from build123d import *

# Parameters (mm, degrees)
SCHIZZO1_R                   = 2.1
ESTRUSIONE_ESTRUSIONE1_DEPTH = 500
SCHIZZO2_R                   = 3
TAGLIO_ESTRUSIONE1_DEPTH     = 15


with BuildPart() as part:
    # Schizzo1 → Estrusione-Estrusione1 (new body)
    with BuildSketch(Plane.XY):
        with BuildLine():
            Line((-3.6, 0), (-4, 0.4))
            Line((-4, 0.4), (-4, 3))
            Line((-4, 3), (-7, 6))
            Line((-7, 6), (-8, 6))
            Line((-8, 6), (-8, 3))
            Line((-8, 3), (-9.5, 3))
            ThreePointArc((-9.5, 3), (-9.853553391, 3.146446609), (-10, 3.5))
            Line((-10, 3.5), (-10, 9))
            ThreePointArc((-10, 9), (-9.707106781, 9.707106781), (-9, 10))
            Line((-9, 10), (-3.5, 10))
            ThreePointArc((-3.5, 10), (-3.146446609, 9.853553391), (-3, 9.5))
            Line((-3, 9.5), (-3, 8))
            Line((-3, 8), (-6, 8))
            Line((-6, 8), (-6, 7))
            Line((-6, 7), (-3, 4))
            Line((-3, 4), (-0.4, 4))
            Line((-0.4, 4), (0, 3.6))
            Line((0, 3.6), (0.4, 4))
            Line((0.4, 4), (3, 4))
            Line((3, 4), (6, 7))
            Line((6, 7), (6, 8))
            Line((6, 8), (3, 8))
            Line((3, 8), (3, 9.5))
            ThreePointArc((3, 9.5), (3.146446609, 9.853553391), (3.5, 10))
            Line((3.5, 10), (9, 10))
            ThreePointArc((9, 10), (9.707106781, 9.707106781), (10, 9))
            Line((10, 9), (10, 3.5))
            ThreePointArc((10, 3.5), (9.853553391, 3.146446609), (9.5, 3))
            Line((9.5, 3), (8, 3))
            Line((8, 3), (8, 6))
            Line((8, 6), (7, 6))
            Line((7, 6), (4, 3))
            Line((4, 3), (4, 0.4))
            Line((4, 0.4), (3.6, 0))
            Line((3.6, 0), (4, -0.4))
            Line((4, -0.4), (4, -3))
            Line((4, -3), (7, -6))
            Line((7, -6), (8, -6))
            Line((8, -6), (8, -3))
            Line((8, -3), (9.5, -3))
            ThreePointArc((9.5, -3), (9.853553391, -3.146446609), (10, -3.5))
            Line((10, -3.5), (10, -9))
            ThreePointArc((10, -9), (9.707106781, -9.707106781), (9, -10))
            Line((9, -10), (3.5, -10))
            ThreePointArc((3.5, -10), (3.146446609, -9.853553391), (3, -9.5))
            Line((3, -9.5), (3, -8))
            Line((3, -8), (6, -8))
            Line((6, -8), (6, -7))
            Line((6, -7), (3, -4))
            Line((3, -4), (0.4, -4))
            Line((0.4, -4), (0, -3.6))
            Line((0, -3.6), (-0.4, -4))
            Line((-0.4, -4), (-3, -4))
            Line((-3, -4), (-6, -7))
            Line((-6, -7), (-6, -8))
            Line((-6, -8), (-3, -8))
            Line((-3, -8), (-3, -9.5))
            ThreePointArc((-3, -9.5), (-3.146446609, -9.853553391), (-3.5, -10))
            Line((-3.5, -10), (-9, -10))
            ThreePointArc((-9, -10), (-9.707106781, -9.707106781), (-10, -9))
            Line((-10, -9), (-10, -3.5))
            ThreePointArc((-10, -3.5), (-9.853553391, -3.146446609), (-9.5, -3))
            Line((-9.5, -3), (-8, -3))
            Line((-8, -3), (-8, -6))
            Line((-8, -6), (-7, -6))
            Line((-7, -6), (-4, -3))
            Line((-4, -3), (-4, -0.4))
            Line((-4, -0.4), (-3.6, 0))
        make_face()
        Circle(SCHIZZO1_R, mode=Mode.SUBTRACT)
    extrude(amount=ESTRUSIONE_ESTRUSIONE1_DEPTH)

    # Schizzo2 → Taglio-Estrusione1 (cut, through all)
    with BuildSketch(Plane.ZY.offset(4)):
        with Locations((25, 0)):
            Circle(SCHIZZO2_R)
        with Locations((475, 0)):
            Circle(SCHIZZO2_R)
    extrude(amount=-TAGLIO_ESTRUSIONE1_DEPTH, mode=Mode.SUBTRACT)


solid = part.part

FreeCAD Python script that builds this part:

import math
import FreeCAD as App
import Part
import Sketcher

V = App.Vector
Q = App.Units.Quantity

doc = App.newDocument("Part")
body = doc.addObject("PartDesign::Body", "Body")

# Sketch on XY plane
sketch1 = body.newObject("Sketcher::SketchObject", "Sketch")
sketch1.AttachmentSupport = (doc.getObject("XY_Plane"), [""])
sketch1.MapMode = "FlatFace"
sketch1.addGeometry([
    Part.LineSegment(V(-4, 0.4, 0), V(-3.6, 0, 0)),  # 0
    Part.LineSegment(V(-3.6, 0, 0), V(-4, -0.4, 0)),  # 1
    Part.LineSegment(V(-4, -0.4, 0), V(-4, -3, 0)),  # 2
    Part.LineSegment(V(-4, -3, 0), V(-7, -6, 0)),  # 3
    Part.LineSegment(V(-7, -6, 0), V(-8, -6, 0)),  # 4
    Part.LineSegment(V(-8, -6, 0), V(-8, -3, 0)),  # 5
    Part.LineSegment(V(-8, -3, 0), V(-9.5, -3, 0)),  # 6
    Part.ArcOfCircle(Part.Circle(V(-9.5, -3.5, 0), V(0, 0, 1), 0.5), math.radians(90), math.radians(180)),  # 7
    Part.LineSegment(V(-10, -3.5, 0), V(-10, -9, 0)),  # 8
    Part.ArcOfCircle(Part.Circle(V(-9, -9, 0), V(0, 0, 1), 1), math.radians(-180), math.radians(-90)),  # 9
    Part.LineSegment(V(-9, -10, 0), V(-3.5, -10, 0)),  # 10
    Part.ArcOfCircle(Part.Circle(V(-3.5, -9.5, 0), V(0, 0, 1), 0.5), math.radians(-90), math.radians(0)),  # 11
    Part.LineSegment(V(-3, -9.5, 0), V(-3, -8, 0)),  # 12
    Part.LineSegment(V(-3, -8, 0), V(-6, -8, 0)),  # 13
    Part.LineSegment(V(-6, -8, 0), V(-6, -7, 0)),  # 14
    Part.LineSegment(V(-6, -7, 0), V(-3, -4, 0)),  # 15
    Part.LineSegment(V(-3, -4, 0), V(-0.4, -4, 0)),  # 16
    Part.LineSegment(V(-0.4, -4, 0), V(0, -3.6, 0)),  # 17
    Part.LineSegment(V(0, -3.6, 0), V(0.4, -4, 0)),  # 18
    Part.LineSegment(V(0.4, -4, 0), V(3, -4, 0)),  # 19
    Part.LineSegment(V(3, -4, 0), V(6, -7, 0)),  # 20
    Part.LineSegment(V(6, -7, 0), V(6, -8, 0)),  # 21
    Part.LineSegment(V(6, -8, 0), V(3, -8, 0)),  # 22
    Part.LineSegment(V(3, -8, 0), V(3, -9.5, 0)),  # 23
    Part.ArcOfCircle(Part.Circle(V(3.5, -9.5, 0), V(0, 0, 1), 0.5), math.radians(180), math.radians(270)),  # 24
    Part.LineSegment(V(3.5, -10, 0), V(9, -10, 0)),  # 25
    Part.ArcOfCircle(Part.Circle(V(9, -9, 0), V(0, 0, 1), 1), math.radians(-90), math.radians(0)),  # 26
    Part.LineSegment(V(10, -9, 0), V(10, -3.5, 0)),  # 27
    Part.ArcOfCircle(Part.Circle(V(9.5, -3.5, 0), V(0, 0, 1), 0.5), math.radians(0), math.radians(90)),  # 28
    Part.LineSegment(V(9.5, -3, 0), V(8, -3, 0)),  # 29
    Part.LineSegment(V(8, -3, 0), V(8, -6, 0)),  # 30
    Part.LineSegment(V(8, -6, 0), V(7, -6, 0)),  # 31
    Part.LineSegment(V(7, -6, 0), V(4, -3, 0)),  # 32
    Part.LineSegment(V(4, -3, 0), V(4, -0.4, 0)),  # 33
    Part.LineSegment(V(4, -0.4, 0), V(3.6, 0, 0)),  # 34
    Part.LineSegment(V(3.6, 0, 0), V(4, 0.4, 0)),  # 35
    Part.LineSegment(V(4, 0.4, 0), V(4, 3, 0)),  # 36
    Part.LineSegment(V(4, 3, 0), V(7, 6, 0)),  # 37
    Part.LineSegment(V(7, 6, 0), V(8, 6, 0)),  # 38
    Part.LineSegment(V(8, 6, 0), V(8, 3, 0)),  # 39
    Part.LineSegment(V(8, 3, 0), V(9.5, 3, 0)),  # 40
    Part.ArcOfCircle(Part.Circle(V(9.5, 3.5, 0), V(0, 0, 1), 0.5), math.radians(-90), math.radians(0)),  # 41
    Part.LineSegment(V(10, 3.5, 0), V(10, 9, 0)),  # 42
    Part.ArcOfCircle(Part.Circle(V(9, 9, 0), V(0, 0, 1), 1), math.radians(0), math.radians(90)),  # 43
    Part.LineSegment(V(9, 10, 0), V(3.5, 10, 0)),  # 44
    Part.ArcOfCircle(Part.Circle(V(3.5, 9.5, 0), V(0, 0, 1), 0.5), math.radians(90), math.radians(180)),  # 45
    Part.LineSegment(V(3, 9.5, 0), V(3, 8, 0)),  # 46
    Part.LineSegment(V(3, 8, 0), V(6, 8, 0)),  # 47
    Part.LineSegment(V(6, 8, 0), V(6, 7, 0)),  # 48
    Part.LineSegment(V(6, 7, 0), V(3, 4, 0)),  # 49
    Part.LineSegment(V(3, 4, 0), V(0.4, 4, 0)),  # 50
    Part.LineSegment(V(0.4, 4, 0), V(0, 3.6, 0)),  # 51
    Part.LineSegment(V(0, 3.6, 0), V(-0.4, 4, 0)),  # 52
    Part.LineSegment(V(-0.4, 4, 0), V(-3, 4, 0)),  # 53
    Part.LineSegment(V(-3, 4, 0), V(-6, 7, 0)),  # 54
    Part.LineSegment(V(-6, 7, 0), V(-6, 8, 0)),  # 55
    Part.LineSegment(V(-6, 8, 0), V(-3, 8, 0)),  # 56
    Part.LineSegment(V(-3, 8, 0), V(-3, 9.5, 0)),  # 57
    Part.ArcOfCircle(Part.Circle(V(-3.5, 9.5, 0), V(0, 0, 1), 0.5), math.radians(0), math.radians(90)),  # 58
    Part.LineSegment(V(-3.5, 10, 0), V(-9, 10, 0)),  # 59
    Part.ArcOfCircle(Part.Circle(V(-9, 9, 0), V(0, 0, 1), 1), math.radians(90), math.radians(180)),  # 60
    Part.LineSegment(V(-10, 9, 0), V(-10, 3.5, 0)),  # 61
    Part.ArcOfCircle(Part.Circle(V(-9.5, 3.5, 0), V(0, 0, 1), 0.5), math.radians(180), math.radians(270)),  # 62
    Part.LineSegment(V(-9.5, 3, 0), V(-8, 3, 0)),  # 63
    Part.LineSegment(V(-8, 3, 0), V(-8, 6, 0)),  # 64
    Part.LineSegment(V(-8, 6, 0), V(-7, 6, 0)),  # 65
    Part.LineSegment(V(-7, 6, 0), V(-4, 3, 0)),  # 66
    Part.LineSegment(V(-4, 3, 0), V(-4, 0.4, 0)),  # 67
    Part.Circle(V(0, 0, 0), V(0, 0, 1), 2.1),  # 68
], False)
sketch1.addConstraint([
    Sketcher.Constraint("Coincident", 0, 2, 1, 1),
    Sketcher.Constraint("Coincident", 1, 2, 2, 1),
    Sketcher.Constraint("Coincident", 2, 2, 3, 1),
    Sketcher.Constraint("Coincident", 3, 2, 4, 1),
    Sketcher.Constraint("Coincident", 4, 2, 5, 1),
    Sketcher.Constraint("Coincident", 5, 2, 6, 1),
    Sketcher.Constraint("Tangent", 6, 2, 7, 1),
    Sketcher.Constraint("Tangent", 7, 2, 8, 1),
    Sketcher.Constraint("Tangent", 8, 2, 9, 1),
    Sketcher.Constraint("Tangent", 9, 2, 10, 1),
    Sketcher.Constraint("Tangent", 10, 2, 11, 1),
    Sketcher.Constraint("Tangent", 11, 2, 12, 1),
    Sketcher.Constraint("Coincident", 12, 2, 13, 1),
    Sketcher.Constraint("Coincident", 13, 2, 14, 1),
    Sketcher.Constraint("Coincident", 14, 2, 15, 1),
    Sketcher.Constraint("Coincident", 15, 2, 16, 1),
    Sketcher.Constraint("Coincident", 16, 2, 17, 1),
    Sketcher.Constraint("Coincident", 17, 2, 18, 1),
    Sketcher.Constraint("Coincident", 18, 2, 19, 1),
    Sketcher.Constraint("Coincident", 19, 2, 20, 1),
    Sketcher.Constraint("Coincident", 20, 2, 21, 1),
    Sketcher.Constraint("Coincident", 21, 2, 22, 1),
    Sketcher.Constraint("Coincident", 22, 2, 23, 1),
    Sketcher.Constraint("Tangent", 23, 2, 24, 1),
    Sketcher.Constraint("Tangent", 24, 2, 25, 1),
    Sketcher.Constraint("Tangent", 25, 2, 26, 1),
    Sketcher.Constraint("Tangent", 26, 2, 27, 1),
    Sketcher.Constraint("Tangent", 27, 2, 28, 1),
    Sketcher.Constraint("Tangent", 28, 2, 29, 1),
    Sketcher.Constraint("Coincident", 29, 2, 30, 1),
    Sketcher.Constraint("Coincident", 30, 2, 31, 1),
    Sketcher.Constraint("Coincident", 31, 2, 32, 1),
    Sketcher.Constraint("Coincident", 32, 2, 33, 1),
    Sketcher.Constraint("Coincident", 33, 2, 34, 1),
    Sketcher.Constraint("Coincident", 34, 2, 35, 1),
    Sketcher.Constraint("Coincident", 35, 2, 36, 1),
    Sketcher.Constraint("Coincident", 36, 2, 37, 1),
    Sketcher.Constraint("Coincident", 37, 2, 38, 1),
    Sketcher.Constraint("Coincident", 38, 2, 39, 1),
    Sketcher.Constraint("Coincident", 39, 2, 40, 1),
    Sketcher.Constraint("Tangent", 40, 2, 41, 1),
    Sketcher.Constraint("Tangent", 41, 2, 42, 1),
    Sketcher.Constraint("Tangent", 42, 2, 43, 1),
    Sketcher.Constraint("Tangent", 43, 2, 44, 1),
    Sketcher.Constraint("Tangent", 44, 2, 45, 1),
    Sketcher.Constraint("Tangent", 45, 2, 46, 1),
    Sketcher.Constraint("Coincident", 46, 2, 47, 1),
    Sketcher.Constraint("Coincident", 47, 2, 48, 1),
    Sketcher.Constraint("Coincident", 48, 2, 49, 1),
    Sketcher.Constraint("Coincident", 49, 2, 50, 1),
    Sketcher.Constraint("Coincident", 50, 2, 51, 1),
    Sketcher.Constraint("Coincident", 51, 2, 52, 1),
    Sketcher.Constraint("Coincident", 52, 2, 53, 1),
    Sketcher.Constraint("Coincident", 53, 2, 54, 1),
    Sketcher.Constraint("Coincident", 54, 2, 55, 1),
    Sketcher.Constraint("Coincident", 55, 2, 56, 1),
    Sketcher.Constraint("Coincident", 56, 2, 57, 1),
    Sketcher.Constraint("Tangent", 57, 2, 58, 1),
    Sketcher.Constraint("Tangent", 58, 2, 59, 1),
    Sketcher.Constraint("Tangent", 59, 2, 60, 1),
    Sketcher.Constraint("Tangent", 60, 2, 61, 1),
    Sketcher.Constraint("Tangent", 61, 2, 62, 1),
    Sketcher.Constraint("Tangent", 62, 2, 63, 1),
    Sketcher.Constraint("Coincident", 63, 2, 64, 1),
    Sketcher.Constraint("Coincident", 64, 2, 65, 1),
    Sketcher.Constraint("Coincident", 65, 2, 66, 1),
    Sketcher.Constraint("Coincident", 66, 2, 67, 1),
    Sketcher.Constraint("Coincident", 67, 2, 0, 1),
    Sketcher.Constraint("Vertical", 2),
    Sketcher.Constraint("Horizontal", 4),
    Sketcher.Constraint("Vertical", 5),
    Sketcher.Constraint("Horizontal", 6),
    Sketcher.Constraint("Vertical", 8),
    Sketcher.Constraint("Horizontal", 10),
    Sketcher.Constraint("Vertical", 12),
    Sketcher.Constraint("Horizontal", 13),
    Sketcher.Constraint("Vertical", 14),
    Sketcher.Constraint("Horizontal", 16),
    Sketcher.Constraint("Horizontal", 19),
    Sketcher.Constraint("Vertical", 21),
    Sketcher.Constraint("Horizontal", 22),
    Sketcher.Constraint("Vertical", 23),
    Sketcher.Constraint("Horizontal", 25),
    Sketcher.Constraint("Vertical", 27),
    Sketcher.Constraint("Horizontal", 29),
    Sketcher.Constraint("Vertical", 30),
    Sketcher.Constraint("Horizontal", 31),
    Sketcher.Constraint("Vertical", 33),
    Sketcher.Constraint("Vertical", 36),
    Sketcher.Constraint("Horizontal", 38),
    Sketcher.Constraint("Vertical", 39),
    Sketcher.Constraint("Horizontal", 40),
    Sketcher.Constraint("Vertical", 42),
    Sketcher.Constraint("Horizontal", 44),
    Sketcher.Constraint("Vertical", 46),
    Sketcher.Constraint("Horizontal", 47),
    Sketcher.Constraint("Vertical", 48),
    Sketcher.Constraint("Horizontal", 50),
    Sketcher.Constraint("Horizontal", 53),
    Sketcher.Constraint("Vertical", 55),
    Sketcher.Constraint("Horizontal", 56),
    Sketcher.Constraint("Vertical", 57),
    Sketcher.Constraint("Horizontal", 59),
    Sketcher.Constraint("Vertical", 61),
    Sketcher.Constraint("Horizontal", 63),
    Sketcher.Constraint("Vertical", 64),
    Sketcher.Constraint("Horizontal", 65),
    Sketcher.Constraint("Vertical", 67),
    Sketcher.Constraint("Coincident", 68, 3, -1, 1),
    Sketcher.Constraint("Equal", 7, 11),
    Sketcher.Constraint("Equal", 11, 24),
    Sketcher.Constraint("Equal", 9, 26),
    Sketcher.Constraint("Equal", 24, 28),
    Sketcher.Constraint("Equal", 28, 41),
    Sketcher.Constraint("Equal", 26, 43),
    Sketcher.Constraint("Equal", 41, 45),
    Sketcher.Constraint("Equal", 45, 58),
    Sketcher.Constraint("Equal", 43, 60),
    Sketcher.Constraint("Equal", 58, 62),
    Sketcher.Constraint("Symmetric", 7, 3, 41, 3, -1, 1),
    Sketcher.Constraint("Symmetric", 11, 3, 45, 3, -1, 1),
    Sketcher.Constraint("Symmetric", 24, 3, 58, 3, -1, 1),
    Sketcher.Constraint("Symmetric", 28, 3, 62, 3, -1, 1),
    Sketcher.Constraint("Symmetric", 0, 2, 34, 2, -1, 1),
    Sketcher.Constraint("Symmetric", 1, 2, 35, 2, -1, 1),
    Sketcher.Constraint("Symmetric", 3, 2, 37, 2, -1, 1),
    Sketcher.Constraint("Symmetric", 13, 2, 47, 2, -1, 1),
    Sketcher.Constraint("Symmetric", 15, 2, 49, 2, -1, 1),
    Sketcher.Constraint("Symmetric", 17, 2, 51, 2, -1, 1),
    Sketcher.Constraint("Symmetric", 18, 2, 52, 2, -1, 1),
    Sketcher.Constraint("Symmetric", 20, 2, 54, 2, -1, 1),
    Sketcher.Constraint("Symmetric", 30, 2, 64, 2, -1, 1),
    Sketcher.Constraint("Symmetric", 32, 2, 66, 2, -1, 1),
    Sketcher.Constraint("Symmetric", 11, 3, 24, 3, -2),
    Sketcher.Constraint("Symmetric", 7, 3, 28, 3, -2),
    Sketcher.Constraint("Symmetric", 16, 2, 18, 2, -2),
    Sketcher.Constraint("Symmetric", 14, 2, 20, 2, -2),
    Sketcher.Constraint("Symmetric", 4, 2, 30, 2, -2),
    Sketcher.Constraint("Symmetric", 2, 2, 32, 2, -2),
    Sketcher.Constraint("PointOnObject", 0, 2, -1),
    Sketcher.Constraint("PointOnObject", 17, 2, -2),
    Sketcher.Constraint("Perpendicular", 0, 1),
    Sketcher.Constraint("Parallel", 1, 3),
    Sketcher.Constraint("Parallel", 3, 15),
    Sketcher.Constraint("Parallel", 15, 17),
    Sketcher.Constraint("Perpendicular", 17, 18),
    Sketcher.Constraint("Parallel", 18, 20),
    Sketcher.Constraint("Parallel", 20, 32),
    Sketcher.Constraint("Parallel", 32, 34),
    Sketcher.Constraint("Parallel", 35, 37),
    Sketcher.Constraint("Parallel", 37, 49),
    Sketcher.Constraint("Parallel", 49, 51),
    Sketcher.Constraint("Parallel", 52, 54),
    Sketcher.Constraint("Parallel", 54, 66),
    Sketcher.Constraint("Horizontal", 2, 2, 5, 2),
    Sketcher.Constraint("Horizontal", 13, 2, 21, 2),
    Sketcher.Constraint("Horizontal", 47, 2, 55, 2),
    Sketcher.Constraint("Vertical", 12, 2, 15, 2),
    Sketcher.Constraint("Vertical", 30, 2, 38, 2),
    Sketcher.Constraint("Equal", 53, 2),
    Sketcher.Constraint("Equal", 56, 5),
    Sketcher.Constraint("Equal", 59, 8),
    Sketcher.Constraint("Equal", 63, 12),
    Sketcher.Constraint("Equal", 65, 14),
    Sketcher.Constraint("Equal", 1, 17),
    Sketcher.Constraint("Radius", 9, Q("1 mm")),
    Sketcher.Constraint("Diameter", 68, Q("4.2 mm")),
    Sketcher.Constraint("Radius", 7, Q("0.5 mm")),
    Sketcher.Constraint("DistanceX", 4, 2, 4, 1, Q("1 mm")),
    Sketcher.Constraint("DistanceX", 13, 2, 13, 1, Q("3 mm")),
    Sketcher.Constraint("DistanceX", 6, 2, 6, 1, Q("1.5 mm")),
    Sketcher.Constraint("DistanceX", 10, 1, 10, 2, Q("5.5 mm")),
    Sketcher.Constraint("DistanceX", 16, 1, 16, 2, Q("2.6 mm")),
    Sketcher.Constraint("DistanceX", 9, 3, -1, 1, Q("9 mm")),
])
pad1 = body.newObject("PartDesign::Pad", "Pad")
pad1.Profile = sketch1
pad1.Length = 500

# Sketch on YZ plane
sketch2 = body.newObject("Sketcher::SketchObject", "Sketch001")
sketch2.AttachmentSupport = (doc.getObject("YZ_Plane"), [""])
sketch2.MapMode = "FlatFace"
sketch2.AttachmentOffset = App.Placement(V(0, 0, -4), App.Rotation())
sketch2.addGeometry([
    Part.Circle(V(0, 25, 0), V(0, 0, 1), 3),
    Part.Circle(V(0, 475, 0), V(0, 0, 1), 3),
], False)
sketch2.addConstraint([
    Sketcher.Constraint("Equal", 0, 1),
    Sketcher.Constraint("PointOnObject", 0, 3, -2),
    Sketcher.Constraint("PointOnObject", 1, 3, -2),
    Sketcher.Constraint("Diameter", 0, Q("6 mm")),
    Sketcher.Constraint("DistanceY", -1, 1, 0, 3, Q("25 mm")),
    Sketcher.Constraint("DistanceY", -1, 1, 1, 3, Q("475 mm")),
])
pocket1 = body.newObject("PartDesign::Pocket", "Pocket")
pocket1.Profile = sketch2
pocket1.Type = "ThroughAll"
pocket1.Reversed = True

doc.recompute()
